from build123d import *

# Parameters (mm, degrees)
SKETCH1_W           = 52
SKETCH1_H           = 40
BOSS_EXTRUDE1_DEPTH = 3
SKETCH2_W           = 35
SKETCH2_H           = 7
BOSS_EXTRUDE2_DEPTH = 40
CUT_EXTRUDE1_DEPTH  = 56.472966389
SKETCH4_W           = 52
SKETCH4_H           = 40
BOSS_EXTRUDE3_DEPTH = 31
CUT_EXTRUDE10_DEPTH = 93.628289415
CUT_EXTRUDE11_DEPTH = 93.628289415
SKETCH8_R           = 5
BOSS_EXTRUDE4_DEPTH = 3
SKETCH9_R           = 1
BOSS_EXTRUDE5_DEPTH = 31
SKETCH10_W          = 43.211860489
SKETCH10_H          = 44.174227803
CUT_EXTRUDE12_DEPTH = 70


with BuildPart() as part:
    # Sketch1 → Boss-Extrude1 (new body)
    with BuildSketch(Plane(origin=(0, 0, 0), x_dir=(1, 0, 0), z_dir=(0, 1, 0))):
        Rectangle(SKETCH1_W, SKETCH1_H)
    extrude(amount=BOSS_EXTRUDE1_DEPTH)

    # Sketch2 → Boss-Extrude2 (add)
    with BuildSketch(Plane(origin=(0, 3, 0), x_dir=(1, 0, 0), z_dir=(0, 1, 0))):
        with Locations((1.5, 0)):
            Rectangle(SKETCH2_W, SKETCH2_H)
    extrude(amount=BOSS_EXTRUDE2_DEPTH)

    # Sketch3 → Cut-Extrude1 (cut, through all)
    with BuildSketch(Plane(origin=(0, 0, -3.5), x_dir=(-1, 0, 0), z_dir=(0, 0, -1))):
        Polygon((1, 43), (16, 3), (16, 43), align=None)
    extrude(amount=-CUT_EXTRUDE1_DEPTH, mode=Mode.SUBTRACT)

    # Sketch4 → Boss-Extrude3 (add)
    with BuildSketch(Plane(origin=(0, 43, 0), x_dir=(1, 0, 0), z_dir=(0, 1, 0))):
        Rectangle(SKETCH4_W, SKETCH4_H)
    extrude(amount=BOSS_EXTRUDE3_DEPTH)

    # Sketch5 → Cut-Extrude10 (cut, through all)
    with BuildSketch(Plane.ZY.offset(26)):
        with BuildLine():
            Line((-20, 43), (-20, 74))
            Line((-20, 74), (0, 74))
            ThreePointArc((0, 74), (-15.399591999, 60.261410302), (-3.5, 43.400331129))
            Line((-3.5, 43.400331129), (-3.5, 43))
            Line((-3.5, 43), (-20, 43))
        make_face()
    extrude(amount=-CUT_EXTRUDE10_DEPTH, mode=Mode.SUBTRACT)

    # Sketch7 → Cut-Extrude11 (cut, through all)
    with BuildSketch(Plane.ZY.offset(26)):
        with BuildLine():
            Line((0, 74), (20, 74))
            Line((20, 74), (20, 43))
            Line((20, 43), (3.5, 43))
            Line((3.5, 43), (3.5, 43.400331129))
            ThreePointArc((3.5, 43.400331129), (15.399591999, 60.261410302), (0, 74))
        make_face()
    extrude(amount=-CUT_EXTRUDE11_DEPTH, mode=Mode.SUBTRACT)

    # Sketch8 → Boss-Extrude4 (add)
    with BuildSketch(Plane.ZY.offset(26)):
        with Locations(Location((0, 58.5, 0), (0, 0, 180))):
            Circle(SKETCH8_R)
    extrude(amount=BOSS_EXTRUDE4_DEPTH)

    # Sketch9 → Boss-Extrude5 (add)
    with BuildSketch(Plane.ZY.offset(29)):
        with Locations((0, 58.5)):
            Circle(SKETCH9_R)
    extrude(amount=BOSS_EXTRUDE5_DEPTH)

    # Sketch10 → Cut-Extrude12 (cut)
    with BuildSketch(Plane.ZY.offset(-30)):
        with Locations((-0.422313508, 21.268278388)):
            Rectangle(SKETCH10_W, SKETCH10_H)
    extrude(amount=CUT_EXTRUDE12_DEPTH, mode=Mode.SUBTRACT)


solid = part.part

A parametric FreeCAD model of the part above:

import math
import FreeCAD as App
import Part
import Sketcher
Q = App.Units.Quantity

doc = App.newDocument("Part")
params = doc.addObject("Spreadsheet::Sheet", "Params")
for row, (alias, value) in enumerate([
    ("sketch1_width", "52 mm"),
    ("sketch1_height", "40 mm"),
    ("pad1_length", "3 mm"),
    ("sketch2_width", "35 mm"),
    ("sketch2_height", "7 mm"),
    ("pad2_length", "40 mm"),
    ("sketch3_width", "15 mm"),
    ("sketch3_height", "40 mm"),
    ("sketch4_width", "52 mm"),
    ("sketch4_height", "40 mm"),
    ("pad3_length", "31 mm"),
    ("sketch5_radius", "15.5 mm"),
    ("sketch5_width", "31 mm"),
    ("sketch5_height", "20 mm"),
    ("sketch5_height2", "16.5 mm"),
    ("sketch6_radius", "15.5 mm"),
    ("sketch6_width", "31 mm"),
    ("sketch6_height", "20 mm"),
    ("sketch6_height2", "16.5 mm"),
    ("sketch7_diameter", "10 mm"),
    ("pad4_length", "3 mm"),
    ("sketch8_diameter", "2 mm"),
    ("pad5_length", "31 mm"),
    ("pocket4_length", "70 mm"),
], start=1):
    params.set(f"A{row}", alias)
    params.set(f"B{row}", "=" + value)
    params.setAlias(f"B{row}", alias)

body = doc.addObject("PartDesign::Body", "Body")

# Sketch on XZ plane
sketch1 = doc.addObject("Sketcher::SketchObject", "Sketch")
body.addObject(sketch1)
sketch1.AttachmentSupport = (doc.XZ_Plane, [""])
sketch1.MapMode = "FlatFace"
sketch1.addGeometry([
    Part.LineSegment(App.Vector(-26, -20, 0), App.Vector(-26, 20, 0)),
    Part.LineSegment(App.Vector(-26, 20, 0), App.Vector(26, 20, 0)),
    Part.LineSegment(App.Vector(26, 20, 0), App.Vector(26, -20, 0)),
    Part.LineSegment(App.Vector(26, -20, 0), App.Vector(-26, -20, 0)),
], False)
sketch1.addConstraint([
    Sketcher.Constraint("Coincident", 0, 2, 1, 1),
    Sketcher.Constraint("Coincident", 1, 2, 2, 1),
    Sketcher.Constraint("Coincident", 2, 2, 3, 1),
    Sketcher.Constraint("Coincident", 3, 2, 0, 1),
    Sketcher.Constraint("Vertical", 0),
    Sketcher.Constraint("Horizontal", 1),
    Sketcher.Constraint("Vertical", 2),
    Sketcher.Constraint("Horizontal", 3),
    Sketcher.Constraint("Symmetric", 0, 2, 2, 2, -1, 1),
    Sketcher.Constraint("DistanceX", 1, 1, 1, 2, Q("52 mm")),
    Sketcher.Constraint("DistanceY", 0, 1, 0, 2, Q("40 mm")),
])
sketch1.setExpression("Constraints[9]", "Params.sketch1_width")
sketch1.setExpression("Constraints[10]", "Params.sketch1_height")
pad1 = doc.addObject("PartDesign::Pad", "Pad")
body.addObject(pad1)
pad1.Profile = sketch1
pad1.setExpression("Length", "Params.pad1_length")
pad1.Reversed = True

# Sketch on XZ plane
sketch2 = doc.addObject("Sketcher::SketchObject", "Sketch001")
body.addObject(sketch2)
sketch2.AttachmentSupport = (doc.XZ_Plane, [""])
sketch2.MapMode = "FlatFace"
sketch2.AttachmentOffset = App.Placement(App.Vector(0, 0, -3), App.Rotation())
sketch2.addGeometry([
    Part.LineSegment(App.Vector(-16, -4, 0), App.Vector(-16, 4, 0)),
    Part.LineSegment(App.Vector(-16, 4, 0), App.Vector(19, 4, 0)),
    Part.LineSegment(App.Vector(19, 4, 0), App.Vector(19, -4, 0)),
    Part.LineSegment(App.Vector(19, -4, 0), App.Vector(-16, -4, 0)),
], False)
sketch2.addConstraint([
    Sketcher.Constraint("Coincident", 0, 2, 1, 1),
    Sketcher.Constraint("Coincident", 1, 2, 2, 1),
    Sketcher.Constraint("Coincident", 2, 2, 3, 1),
    Sketcher.Constraint("Coincident", 3, 2, 0, 1),
    Sketcher.Constraint("Vertical", 0),
    Sketcher.Constraint("Horizontal", 1),
    Sketcher.Constraint("Vertical", 2),
    Sketcher.Constraint("Horizontal", 3),
    Sketcher.Constraint("DistanceX", 1, 1, 1, 2, Q("35 mm")),
    Sketcher.Constraint("DistanceY", 0, 1, 0, 2, Q("7 mm")),
    Sketcher.Constraint("DistanceX", 0, 2, -1, 1, Q("16 mm")),
    Sketcher.Constraint("DistanceY", -1, 1, 0, 2, Q("3.5 mm")),
])
sketch2.setExpression("Constraints[8]", "Params.sketch2_width")
sketch2.setExpression("Constraints[9]", "Params.sketch2_height")
pad2 = doc.addObject("PartDesign::Pad", "Pad001")
body.addObject(pad2)
pad2.Profile = sketch2
pad2.setExpression("Length", "Params.pad2_length")
pad2.Reversed = True

# Sketch on XY plane
sketch3 = doc.addObject("Sketcher::SketchObject", "Sketch002")
body.addObject(sketch3)
sketch3.AttachmentSupport = (doc.XY_Plane, [""])
sketch3.MapMode = "FlatFace"
sketch3.AttachmentOffset = App.Placement(App.Vector(0, 0, -3.5), App.Rotation())
sketch3.addGeometry([
    Part.LineSegment(App.Vector(-1, 43, 0), App.Vector(-16, 3, 0)),
    Part.LineSegment(App.Vector(-16, 3, 0), App.Vector(-16, 43, 0)),
    Part.LineSegment(App.Vector(-16, 43, 0), App.Vector(-1, 43, 0)),
], False)
sketch3.addConstraint([
    Sketcher.Constraint("Coincident", 0, 2, 1, 1),
    Sketcher.Constraint("Coincident", 1, 2, 2, 1),
    Sketcher.Constraint("Coincident", 2, 2, 0, 1),
    Sketcher.Constraint("Vertical", 1),
    Sketcher.Constraint("Horizontal", 2),
    Sketcher.Constraint("DistanceX", 2, 1, 2, 2, Q("15 mm")),
    Sketcher.Constraint("DistanceY", 1, 1, 1, 2, Q("40 mm")),
    Sketcher.Constraint("DistanceX", 0, 2, -1, 1, Q("16 mm")),
    Sketcher.Constraint("DistanceY", -1, 1, 0, 2, Q("3 mm")),
])
sketch3.setExpression("Constraints[5]", "Params.sketch3_width")
sketch3.setExpression("Constraints[6]", "Params.sketch3_height")
pocket1 = doc.addObject("PartDesign::Pocket", "Pocket")
body.addObject(pocket1)
pocket1.Profile = sketch3
pocket1.Type = "ThroughAll"
pocket1.Reversed = True

# Sketch on XZ plane
sketch4 = doc.addObject("Sketcher::SketchObject", "Sketch003")
body.addObject(sketch4)
sketch4.AttachmentSupport = (doc.XZ_Plane, [""])
sketch4.MapMode = "FlatFace"
sketch4.AttachmentOffset = App.Placement(App.Vector(0, 0, -43), App.Rotation())
sketch4.addGeometry([
    Part.LineSegment(App.Vector(-26, -20, 0), App.Vector(-26, 20, 0)),
    Part.LineSegment(App.Vector(-26, 20, 0), App.Vector(26, 20, 0)),
    Part.LineSegment(App.Vector(26, 20, 0), App.Vector(26, -20, 0)),
    Part.LineSegment(App.Vector(26, -20, 0), App.Vector(-26, -20, 0)),
], False)
sketch4.addConstraint([
    Sketcher.Constraint("Coincident", 0, 2, 1, 1),
    Sketcher.Constraint("Coincident", 1, 2, 2, 1),
    Sketcher.Constraint("Coincident", 2, 2, 3, 1),
    Sketcher.Constraint("Coincident", 3, 2, 0, 1),
    Sketcher.Constraint("Vertical", 0),
    Sketcher.Constraint("Horizontal", 1),
    Sketcher.Constraint("Vertical", 2),
    Sketcher.Constraint("Horizontal", 3),
    Sketcher.Constraint("Symmetric", 0, 2, 2, 2, -1, 1),
    Sketcher.Constraint("DistanceX", 1, 1, 1, 2, Q("52 mm")),
    Sketcher.Constraint("DistanceY", 0, 1, 0, 2, Q("40 mm")),
])
sketch4.setExpression("Constraints[9]", "Params.sketch4_width")
sketch4.setExpression("Constraints[10]", "Params.sketch4_height")
pad3 = doc.addObject("PartDesign::Pad", "Pad002")
body.addObject(pad3)
pad3.Profile = sketch4
pad3.setExpression("Length", "Params.pad3_length")
pad3.Reversed = True

# Sketch on YZ plane
sketch5 = doc.addObject("Sketcher::SketchObject", "Sketch004")
body.addObject(sketch5)
sketch5.AttachmentSupport = (doc.YZ_Plane, [""])
sketch5.MapMode = "FlatFace"
sketch5.AttachmentOffset = App.Placement(App.Vector(0, 0, -26), App.Rotation())
sketch5.addGeometry([
    Part.LineSegment(App.Vector(74, -20, 0), App.Vector(43, -20, 0)),  # 0
    Part.LineSegment(App.Vector(43, -20, 0), App.Vector(43, -3.5, 0)),  # 1
    Part.LineSegment(App.Vector(43, -3.5, 0), App.Vector(43.4, -3.5, 0)),  # 2
    Part.ArcOfCircle(Part.Circle(App.Vector(58.5, 0, 0), App.Vector(0, 0, 1), 15.5), math.radians(-167), math.radians(0)),  # 3
    Part.LineSegment(App.Vector(74, 0, 0), App.Vector(74, -20, 0)),  # 4
], False)
sketch5.addConstraint([
    Sketcher.Constraint("Coincident", 0, 2, 1, 1),
    Sketcher.Constraint("Coincident", 1, 2, 2, 1),
    Sketcher.Constraint("Coincident", 2, 2, 3, 1),
    Sketcher.Constraint("Tangent", 3, 2, 4, 1),
    Sketcher.Constraint("Coincident", 4, 2, 0, 1),
    Sketcher.Constraint("Horizontal", 0),
    Sketcher.Constraint("Vertical", 1),
    Sketcher.Constraint("Horizontal", 2),
    Sketcher.Constraint("Vertical", 4),
    Sketcher.Constraint("PointOnObject", 3, 3, -1),
    Sketcher.Constraint("Radius", 3, Q("15.5 mm")),
    Sketcher.Constraint("DistanceX", 0, 2, 0, 1, Q("31 mm")),
    Sketcher.Constraint("DistanceY", 4, 2, 4, 1, Q("20 mm")),
    Sketcher.Constraint("DistanceY", 1, 1, 1, 2, Q("16.5 mm")),
    Sketcher.Constraint("DistanceX", -1, 1, 0, 2, Q("43 mm")),
])
sketch5.setExpression("Constraints[10]", "Params.sketch5_radius")
sketch5.setExpression("Constraints[11]", "Params.sketch5_width")
sketch5.setExpression("Constraints[12]", "Params.sketch5_height")
sketch5.setExpression("Constraints[13]", "Params.sketch5_height2")
pocket2 = doc.addObject("PartDesign::Pocket", "Pocket001")
body.addObject(pocket2)
pocket2.Profile = sketch5
pocket2.Type = "ThroughAll"
pocket2.Reversed = True

# Sketch on YZ plane
sketch6 = doc.addObject("Sketcher::SketchObject", "Sketch005")
body.addObject(sketch6)
sketch6.AttachmentSupport = (doc.YZ_Plane, [""])
sketch6.MapMode = "FlatFace"
sketch6.AttachmentOffset = App.Placement(App.Vector(0, 0, -26), App.Rotation())
sketch6.addGeometry([
    Part.LineSegment(App.Vector(74, 20, 0), App.Vector(74, 0, 0)),  # 0
    Part.ArcOfCircle(Part.Circle(App.Vector(58.5, 0, 0), App.Vector(0, 0, 1), 15.5), math.radians(0), math.radians(167)),  # 1
    Part.LineSegment(App.Vector(43.4, 3.5, 0), App.Vector(43, 3.5, 0)),  # 2
    Part.LineSegment(App.Vector(43, 3.5, 0), App.Vector(43, 20, 0)),  # 3
    Part.LineSegment(App.Vector(43, 20, 0), App.Vector(74, 20, 0)),  # 4
], False)
sketch6.addConstraint([
    Sketcher.Constraint("Tangent", 0, 2, 1, 1),
    Sketcher.Constraint("Coincident", 1, 2, 2, 1),
    Sketcher.Constraint("Coincident", 2, 2, 3, 1),
    Sketcher.Constraint("Coincident", 3, 2, 4, 1),
    Sketcher.Constraint("Coincident", 4, 2, 0, 1),
    Sketcher.Constraint("Vertical", 0),
    Sketcher.Constraint("Horizontal", 2),
    Sketcher.Constraint("Vertical", 3),
    Sketcher.Constraint("Horizontal", 4),
    Sketcher.Constraint("PointOnObject", 1, 3, -1),
    Sketcher.Constraint("Radius", 1, Q("15.5 mm")),
    Sketcher.Constraint("DistanceX", 4, 1, 4, 2, Q("31 mm")),
    Sketcher.Constraint("DistanceY", 0, 2, 0, 1, Q("20 mm")),
    Sketcher.Constraint("DistanceY", 3, 1, 3, 2, Q("16.5 mm")),
    Sketcher.Constraint("DistanceX", -1, 1, 0, 2, Q("74 mm")),
])
sketch6.setExpression("Constraints[10]", "Params.sketch6_radius")
sketch6.setExpression("Constraints[11]", "Params.sketch6_width")
sketch6.setExpression("Constraints[12]", "Params.sketch6_height")
sketch6.setExpression("Constraints[13]", "Params.sketch6_height2")
pocket3 = doc.addObject("PartDesign::Pocket", "Pocket002")
body.addObject(pocket3)
pocket3.Profile = sketch6
pocket3.Type = "ThroughAll"
pocket3.Reversed = True

# Sketch on YZ plane
sketch7 = doc.addObject("Sketcher::SketchObject", "Sketch006")
body.addObject(sketch7)
sketch7.AttachmentSupport = (doc.YZ_Plane, [""])
sketch7.MapMode = "FlatFace"
sketch7.AttachmentOffset = App.Placement(App.Vector(0, 0, -26), App.Rotation())
sketch7.addGeometry(Part.Circle(App.Vector(58, 0, 0), App.Vector(0, 0, 1), 5), False)
sketch7.addConstraint([
    Sketcher.Constraint("PointOnObject", 0, 3, -1),
    Sketcher.Constraint("Diameter", 0, Q("10 mm")),
    Sketcher.Constraint("DistanceX", -1, 1, 0, 3, Q("58.5 mm")),
])
sketch7.setExpression("Constraints[1]", "Params.sketch7_diameter")
pad4 = doc.addObject("PartDesign::Pad", "Pad003")
body.addObject(pad4)
pad4.Profile = sketch7
pad4.setExpression("Length", "Params.pad4_length")
pad4.Reversed = True

# Sketch on YZ plane
sketch8 = doc.addObject("Sketcher::SketchObject", "Sketch007")
body.addObject(sketch8)
sketch8.AttachmentSupport = (doc.YZ_Plane, [""])
sketch8.MapMode = "FlatFace"
sketch8.AttachmentOffset = App.Placement(App.Vector(0, 0, -29), App.Rotation())
sketch8.addGeometry(Part.Circle(App.Vector(58.5, 0, 0), App.Vector(0, 0, 1), 1), False)
sketch8.addConstraint([
    Sketcher.Constraint("PointOnObject", 0, 3, -1),
    Sketcher.Constraint("Diameter", 0, Q("2 mm")),
    Sketcher.Constraint("DistanceX", -1, 1, 0, 3, Q("58.5 mm")),
])
sketch8.setExpression("Constraints[1]", "Params.sketch8_diameter")
pad5 = doc.addObject("PartDesign::Pad", "Pad004")
body.addObject(pad5)
pad5.Profile = sketch8
pad5.setExpression("Length", "Params.pad5_length")
pad5.Reversed = True

# Sketch on YZ plane
sketch9 = doc.addObject("Sketcher::SketchObject", "Sketch008")
body.addObject(sketch9)
sketch9.AttachmentSupport = (doc.YZ_Plane, [""])
sketch9.MapMode = "FlatFace"
sketch9.AttachmentOffset = App.Placement(App.Vector(0, 0, 30), App.Rotation())
sketch9.addGeometry([
    Part.LineSegment(App.Vector(43, -22, 0), App.Vector(-1, -22, 0)),
    Part.LineSegment(App.Vector(-1, -22, 0), App.Vector(-1, 21, 0)),
    Part.LineSegment(App.Vector(-1, 21, 0), App.Vector(43, 21, 0)),
    Part.LineSegment(App.Vector(43, 21, 0), App.Vector(43, -22, 0)),
], False)
sketch9.addConstraint([
    Sketcher.Constraint("Coincident", 0, 2, 1, 1),
    Sketcher.Constraint("Coincident", 1, 2, 2, 1),
    Sketcher.Constraint("Coincident", 2, 2, 3, 1),
    Sketcher.Constraint("Coincident", 3, 2, 0, 1),
    Sketcher.Constraint("Horizontal", 0),
    Sketcher.Constraint("Vertical", 1),
    Sketcher.Constraint("Horizontal", 2),
    Sketcher.Constraint("Vertical", 3),
    Sketcher.Constraint("DistanceY", 1, 1, 1, 2, Q("43.21186 mm")),
    Sketcher.Constraint("DistanceX", 0, 2, 0, 1, Q("44.174228 mm")),
    Sketcher.Constraint("DistanceX", 0, 2, -1, 1, Q("0.818836 mm")),
    Sketcher.Constraint("DistanceY", 0, 2, -1, 1, Q("22.028244 mm")),
])
pocket4 = doc.addObject("PartDesign::Pocket", "Pocket003")
body.addObject(pocket4)
pocket4.Profile = sketch9
pocket4.setExpression("Length", "Params.pocket4_length")

doc.recompute()
